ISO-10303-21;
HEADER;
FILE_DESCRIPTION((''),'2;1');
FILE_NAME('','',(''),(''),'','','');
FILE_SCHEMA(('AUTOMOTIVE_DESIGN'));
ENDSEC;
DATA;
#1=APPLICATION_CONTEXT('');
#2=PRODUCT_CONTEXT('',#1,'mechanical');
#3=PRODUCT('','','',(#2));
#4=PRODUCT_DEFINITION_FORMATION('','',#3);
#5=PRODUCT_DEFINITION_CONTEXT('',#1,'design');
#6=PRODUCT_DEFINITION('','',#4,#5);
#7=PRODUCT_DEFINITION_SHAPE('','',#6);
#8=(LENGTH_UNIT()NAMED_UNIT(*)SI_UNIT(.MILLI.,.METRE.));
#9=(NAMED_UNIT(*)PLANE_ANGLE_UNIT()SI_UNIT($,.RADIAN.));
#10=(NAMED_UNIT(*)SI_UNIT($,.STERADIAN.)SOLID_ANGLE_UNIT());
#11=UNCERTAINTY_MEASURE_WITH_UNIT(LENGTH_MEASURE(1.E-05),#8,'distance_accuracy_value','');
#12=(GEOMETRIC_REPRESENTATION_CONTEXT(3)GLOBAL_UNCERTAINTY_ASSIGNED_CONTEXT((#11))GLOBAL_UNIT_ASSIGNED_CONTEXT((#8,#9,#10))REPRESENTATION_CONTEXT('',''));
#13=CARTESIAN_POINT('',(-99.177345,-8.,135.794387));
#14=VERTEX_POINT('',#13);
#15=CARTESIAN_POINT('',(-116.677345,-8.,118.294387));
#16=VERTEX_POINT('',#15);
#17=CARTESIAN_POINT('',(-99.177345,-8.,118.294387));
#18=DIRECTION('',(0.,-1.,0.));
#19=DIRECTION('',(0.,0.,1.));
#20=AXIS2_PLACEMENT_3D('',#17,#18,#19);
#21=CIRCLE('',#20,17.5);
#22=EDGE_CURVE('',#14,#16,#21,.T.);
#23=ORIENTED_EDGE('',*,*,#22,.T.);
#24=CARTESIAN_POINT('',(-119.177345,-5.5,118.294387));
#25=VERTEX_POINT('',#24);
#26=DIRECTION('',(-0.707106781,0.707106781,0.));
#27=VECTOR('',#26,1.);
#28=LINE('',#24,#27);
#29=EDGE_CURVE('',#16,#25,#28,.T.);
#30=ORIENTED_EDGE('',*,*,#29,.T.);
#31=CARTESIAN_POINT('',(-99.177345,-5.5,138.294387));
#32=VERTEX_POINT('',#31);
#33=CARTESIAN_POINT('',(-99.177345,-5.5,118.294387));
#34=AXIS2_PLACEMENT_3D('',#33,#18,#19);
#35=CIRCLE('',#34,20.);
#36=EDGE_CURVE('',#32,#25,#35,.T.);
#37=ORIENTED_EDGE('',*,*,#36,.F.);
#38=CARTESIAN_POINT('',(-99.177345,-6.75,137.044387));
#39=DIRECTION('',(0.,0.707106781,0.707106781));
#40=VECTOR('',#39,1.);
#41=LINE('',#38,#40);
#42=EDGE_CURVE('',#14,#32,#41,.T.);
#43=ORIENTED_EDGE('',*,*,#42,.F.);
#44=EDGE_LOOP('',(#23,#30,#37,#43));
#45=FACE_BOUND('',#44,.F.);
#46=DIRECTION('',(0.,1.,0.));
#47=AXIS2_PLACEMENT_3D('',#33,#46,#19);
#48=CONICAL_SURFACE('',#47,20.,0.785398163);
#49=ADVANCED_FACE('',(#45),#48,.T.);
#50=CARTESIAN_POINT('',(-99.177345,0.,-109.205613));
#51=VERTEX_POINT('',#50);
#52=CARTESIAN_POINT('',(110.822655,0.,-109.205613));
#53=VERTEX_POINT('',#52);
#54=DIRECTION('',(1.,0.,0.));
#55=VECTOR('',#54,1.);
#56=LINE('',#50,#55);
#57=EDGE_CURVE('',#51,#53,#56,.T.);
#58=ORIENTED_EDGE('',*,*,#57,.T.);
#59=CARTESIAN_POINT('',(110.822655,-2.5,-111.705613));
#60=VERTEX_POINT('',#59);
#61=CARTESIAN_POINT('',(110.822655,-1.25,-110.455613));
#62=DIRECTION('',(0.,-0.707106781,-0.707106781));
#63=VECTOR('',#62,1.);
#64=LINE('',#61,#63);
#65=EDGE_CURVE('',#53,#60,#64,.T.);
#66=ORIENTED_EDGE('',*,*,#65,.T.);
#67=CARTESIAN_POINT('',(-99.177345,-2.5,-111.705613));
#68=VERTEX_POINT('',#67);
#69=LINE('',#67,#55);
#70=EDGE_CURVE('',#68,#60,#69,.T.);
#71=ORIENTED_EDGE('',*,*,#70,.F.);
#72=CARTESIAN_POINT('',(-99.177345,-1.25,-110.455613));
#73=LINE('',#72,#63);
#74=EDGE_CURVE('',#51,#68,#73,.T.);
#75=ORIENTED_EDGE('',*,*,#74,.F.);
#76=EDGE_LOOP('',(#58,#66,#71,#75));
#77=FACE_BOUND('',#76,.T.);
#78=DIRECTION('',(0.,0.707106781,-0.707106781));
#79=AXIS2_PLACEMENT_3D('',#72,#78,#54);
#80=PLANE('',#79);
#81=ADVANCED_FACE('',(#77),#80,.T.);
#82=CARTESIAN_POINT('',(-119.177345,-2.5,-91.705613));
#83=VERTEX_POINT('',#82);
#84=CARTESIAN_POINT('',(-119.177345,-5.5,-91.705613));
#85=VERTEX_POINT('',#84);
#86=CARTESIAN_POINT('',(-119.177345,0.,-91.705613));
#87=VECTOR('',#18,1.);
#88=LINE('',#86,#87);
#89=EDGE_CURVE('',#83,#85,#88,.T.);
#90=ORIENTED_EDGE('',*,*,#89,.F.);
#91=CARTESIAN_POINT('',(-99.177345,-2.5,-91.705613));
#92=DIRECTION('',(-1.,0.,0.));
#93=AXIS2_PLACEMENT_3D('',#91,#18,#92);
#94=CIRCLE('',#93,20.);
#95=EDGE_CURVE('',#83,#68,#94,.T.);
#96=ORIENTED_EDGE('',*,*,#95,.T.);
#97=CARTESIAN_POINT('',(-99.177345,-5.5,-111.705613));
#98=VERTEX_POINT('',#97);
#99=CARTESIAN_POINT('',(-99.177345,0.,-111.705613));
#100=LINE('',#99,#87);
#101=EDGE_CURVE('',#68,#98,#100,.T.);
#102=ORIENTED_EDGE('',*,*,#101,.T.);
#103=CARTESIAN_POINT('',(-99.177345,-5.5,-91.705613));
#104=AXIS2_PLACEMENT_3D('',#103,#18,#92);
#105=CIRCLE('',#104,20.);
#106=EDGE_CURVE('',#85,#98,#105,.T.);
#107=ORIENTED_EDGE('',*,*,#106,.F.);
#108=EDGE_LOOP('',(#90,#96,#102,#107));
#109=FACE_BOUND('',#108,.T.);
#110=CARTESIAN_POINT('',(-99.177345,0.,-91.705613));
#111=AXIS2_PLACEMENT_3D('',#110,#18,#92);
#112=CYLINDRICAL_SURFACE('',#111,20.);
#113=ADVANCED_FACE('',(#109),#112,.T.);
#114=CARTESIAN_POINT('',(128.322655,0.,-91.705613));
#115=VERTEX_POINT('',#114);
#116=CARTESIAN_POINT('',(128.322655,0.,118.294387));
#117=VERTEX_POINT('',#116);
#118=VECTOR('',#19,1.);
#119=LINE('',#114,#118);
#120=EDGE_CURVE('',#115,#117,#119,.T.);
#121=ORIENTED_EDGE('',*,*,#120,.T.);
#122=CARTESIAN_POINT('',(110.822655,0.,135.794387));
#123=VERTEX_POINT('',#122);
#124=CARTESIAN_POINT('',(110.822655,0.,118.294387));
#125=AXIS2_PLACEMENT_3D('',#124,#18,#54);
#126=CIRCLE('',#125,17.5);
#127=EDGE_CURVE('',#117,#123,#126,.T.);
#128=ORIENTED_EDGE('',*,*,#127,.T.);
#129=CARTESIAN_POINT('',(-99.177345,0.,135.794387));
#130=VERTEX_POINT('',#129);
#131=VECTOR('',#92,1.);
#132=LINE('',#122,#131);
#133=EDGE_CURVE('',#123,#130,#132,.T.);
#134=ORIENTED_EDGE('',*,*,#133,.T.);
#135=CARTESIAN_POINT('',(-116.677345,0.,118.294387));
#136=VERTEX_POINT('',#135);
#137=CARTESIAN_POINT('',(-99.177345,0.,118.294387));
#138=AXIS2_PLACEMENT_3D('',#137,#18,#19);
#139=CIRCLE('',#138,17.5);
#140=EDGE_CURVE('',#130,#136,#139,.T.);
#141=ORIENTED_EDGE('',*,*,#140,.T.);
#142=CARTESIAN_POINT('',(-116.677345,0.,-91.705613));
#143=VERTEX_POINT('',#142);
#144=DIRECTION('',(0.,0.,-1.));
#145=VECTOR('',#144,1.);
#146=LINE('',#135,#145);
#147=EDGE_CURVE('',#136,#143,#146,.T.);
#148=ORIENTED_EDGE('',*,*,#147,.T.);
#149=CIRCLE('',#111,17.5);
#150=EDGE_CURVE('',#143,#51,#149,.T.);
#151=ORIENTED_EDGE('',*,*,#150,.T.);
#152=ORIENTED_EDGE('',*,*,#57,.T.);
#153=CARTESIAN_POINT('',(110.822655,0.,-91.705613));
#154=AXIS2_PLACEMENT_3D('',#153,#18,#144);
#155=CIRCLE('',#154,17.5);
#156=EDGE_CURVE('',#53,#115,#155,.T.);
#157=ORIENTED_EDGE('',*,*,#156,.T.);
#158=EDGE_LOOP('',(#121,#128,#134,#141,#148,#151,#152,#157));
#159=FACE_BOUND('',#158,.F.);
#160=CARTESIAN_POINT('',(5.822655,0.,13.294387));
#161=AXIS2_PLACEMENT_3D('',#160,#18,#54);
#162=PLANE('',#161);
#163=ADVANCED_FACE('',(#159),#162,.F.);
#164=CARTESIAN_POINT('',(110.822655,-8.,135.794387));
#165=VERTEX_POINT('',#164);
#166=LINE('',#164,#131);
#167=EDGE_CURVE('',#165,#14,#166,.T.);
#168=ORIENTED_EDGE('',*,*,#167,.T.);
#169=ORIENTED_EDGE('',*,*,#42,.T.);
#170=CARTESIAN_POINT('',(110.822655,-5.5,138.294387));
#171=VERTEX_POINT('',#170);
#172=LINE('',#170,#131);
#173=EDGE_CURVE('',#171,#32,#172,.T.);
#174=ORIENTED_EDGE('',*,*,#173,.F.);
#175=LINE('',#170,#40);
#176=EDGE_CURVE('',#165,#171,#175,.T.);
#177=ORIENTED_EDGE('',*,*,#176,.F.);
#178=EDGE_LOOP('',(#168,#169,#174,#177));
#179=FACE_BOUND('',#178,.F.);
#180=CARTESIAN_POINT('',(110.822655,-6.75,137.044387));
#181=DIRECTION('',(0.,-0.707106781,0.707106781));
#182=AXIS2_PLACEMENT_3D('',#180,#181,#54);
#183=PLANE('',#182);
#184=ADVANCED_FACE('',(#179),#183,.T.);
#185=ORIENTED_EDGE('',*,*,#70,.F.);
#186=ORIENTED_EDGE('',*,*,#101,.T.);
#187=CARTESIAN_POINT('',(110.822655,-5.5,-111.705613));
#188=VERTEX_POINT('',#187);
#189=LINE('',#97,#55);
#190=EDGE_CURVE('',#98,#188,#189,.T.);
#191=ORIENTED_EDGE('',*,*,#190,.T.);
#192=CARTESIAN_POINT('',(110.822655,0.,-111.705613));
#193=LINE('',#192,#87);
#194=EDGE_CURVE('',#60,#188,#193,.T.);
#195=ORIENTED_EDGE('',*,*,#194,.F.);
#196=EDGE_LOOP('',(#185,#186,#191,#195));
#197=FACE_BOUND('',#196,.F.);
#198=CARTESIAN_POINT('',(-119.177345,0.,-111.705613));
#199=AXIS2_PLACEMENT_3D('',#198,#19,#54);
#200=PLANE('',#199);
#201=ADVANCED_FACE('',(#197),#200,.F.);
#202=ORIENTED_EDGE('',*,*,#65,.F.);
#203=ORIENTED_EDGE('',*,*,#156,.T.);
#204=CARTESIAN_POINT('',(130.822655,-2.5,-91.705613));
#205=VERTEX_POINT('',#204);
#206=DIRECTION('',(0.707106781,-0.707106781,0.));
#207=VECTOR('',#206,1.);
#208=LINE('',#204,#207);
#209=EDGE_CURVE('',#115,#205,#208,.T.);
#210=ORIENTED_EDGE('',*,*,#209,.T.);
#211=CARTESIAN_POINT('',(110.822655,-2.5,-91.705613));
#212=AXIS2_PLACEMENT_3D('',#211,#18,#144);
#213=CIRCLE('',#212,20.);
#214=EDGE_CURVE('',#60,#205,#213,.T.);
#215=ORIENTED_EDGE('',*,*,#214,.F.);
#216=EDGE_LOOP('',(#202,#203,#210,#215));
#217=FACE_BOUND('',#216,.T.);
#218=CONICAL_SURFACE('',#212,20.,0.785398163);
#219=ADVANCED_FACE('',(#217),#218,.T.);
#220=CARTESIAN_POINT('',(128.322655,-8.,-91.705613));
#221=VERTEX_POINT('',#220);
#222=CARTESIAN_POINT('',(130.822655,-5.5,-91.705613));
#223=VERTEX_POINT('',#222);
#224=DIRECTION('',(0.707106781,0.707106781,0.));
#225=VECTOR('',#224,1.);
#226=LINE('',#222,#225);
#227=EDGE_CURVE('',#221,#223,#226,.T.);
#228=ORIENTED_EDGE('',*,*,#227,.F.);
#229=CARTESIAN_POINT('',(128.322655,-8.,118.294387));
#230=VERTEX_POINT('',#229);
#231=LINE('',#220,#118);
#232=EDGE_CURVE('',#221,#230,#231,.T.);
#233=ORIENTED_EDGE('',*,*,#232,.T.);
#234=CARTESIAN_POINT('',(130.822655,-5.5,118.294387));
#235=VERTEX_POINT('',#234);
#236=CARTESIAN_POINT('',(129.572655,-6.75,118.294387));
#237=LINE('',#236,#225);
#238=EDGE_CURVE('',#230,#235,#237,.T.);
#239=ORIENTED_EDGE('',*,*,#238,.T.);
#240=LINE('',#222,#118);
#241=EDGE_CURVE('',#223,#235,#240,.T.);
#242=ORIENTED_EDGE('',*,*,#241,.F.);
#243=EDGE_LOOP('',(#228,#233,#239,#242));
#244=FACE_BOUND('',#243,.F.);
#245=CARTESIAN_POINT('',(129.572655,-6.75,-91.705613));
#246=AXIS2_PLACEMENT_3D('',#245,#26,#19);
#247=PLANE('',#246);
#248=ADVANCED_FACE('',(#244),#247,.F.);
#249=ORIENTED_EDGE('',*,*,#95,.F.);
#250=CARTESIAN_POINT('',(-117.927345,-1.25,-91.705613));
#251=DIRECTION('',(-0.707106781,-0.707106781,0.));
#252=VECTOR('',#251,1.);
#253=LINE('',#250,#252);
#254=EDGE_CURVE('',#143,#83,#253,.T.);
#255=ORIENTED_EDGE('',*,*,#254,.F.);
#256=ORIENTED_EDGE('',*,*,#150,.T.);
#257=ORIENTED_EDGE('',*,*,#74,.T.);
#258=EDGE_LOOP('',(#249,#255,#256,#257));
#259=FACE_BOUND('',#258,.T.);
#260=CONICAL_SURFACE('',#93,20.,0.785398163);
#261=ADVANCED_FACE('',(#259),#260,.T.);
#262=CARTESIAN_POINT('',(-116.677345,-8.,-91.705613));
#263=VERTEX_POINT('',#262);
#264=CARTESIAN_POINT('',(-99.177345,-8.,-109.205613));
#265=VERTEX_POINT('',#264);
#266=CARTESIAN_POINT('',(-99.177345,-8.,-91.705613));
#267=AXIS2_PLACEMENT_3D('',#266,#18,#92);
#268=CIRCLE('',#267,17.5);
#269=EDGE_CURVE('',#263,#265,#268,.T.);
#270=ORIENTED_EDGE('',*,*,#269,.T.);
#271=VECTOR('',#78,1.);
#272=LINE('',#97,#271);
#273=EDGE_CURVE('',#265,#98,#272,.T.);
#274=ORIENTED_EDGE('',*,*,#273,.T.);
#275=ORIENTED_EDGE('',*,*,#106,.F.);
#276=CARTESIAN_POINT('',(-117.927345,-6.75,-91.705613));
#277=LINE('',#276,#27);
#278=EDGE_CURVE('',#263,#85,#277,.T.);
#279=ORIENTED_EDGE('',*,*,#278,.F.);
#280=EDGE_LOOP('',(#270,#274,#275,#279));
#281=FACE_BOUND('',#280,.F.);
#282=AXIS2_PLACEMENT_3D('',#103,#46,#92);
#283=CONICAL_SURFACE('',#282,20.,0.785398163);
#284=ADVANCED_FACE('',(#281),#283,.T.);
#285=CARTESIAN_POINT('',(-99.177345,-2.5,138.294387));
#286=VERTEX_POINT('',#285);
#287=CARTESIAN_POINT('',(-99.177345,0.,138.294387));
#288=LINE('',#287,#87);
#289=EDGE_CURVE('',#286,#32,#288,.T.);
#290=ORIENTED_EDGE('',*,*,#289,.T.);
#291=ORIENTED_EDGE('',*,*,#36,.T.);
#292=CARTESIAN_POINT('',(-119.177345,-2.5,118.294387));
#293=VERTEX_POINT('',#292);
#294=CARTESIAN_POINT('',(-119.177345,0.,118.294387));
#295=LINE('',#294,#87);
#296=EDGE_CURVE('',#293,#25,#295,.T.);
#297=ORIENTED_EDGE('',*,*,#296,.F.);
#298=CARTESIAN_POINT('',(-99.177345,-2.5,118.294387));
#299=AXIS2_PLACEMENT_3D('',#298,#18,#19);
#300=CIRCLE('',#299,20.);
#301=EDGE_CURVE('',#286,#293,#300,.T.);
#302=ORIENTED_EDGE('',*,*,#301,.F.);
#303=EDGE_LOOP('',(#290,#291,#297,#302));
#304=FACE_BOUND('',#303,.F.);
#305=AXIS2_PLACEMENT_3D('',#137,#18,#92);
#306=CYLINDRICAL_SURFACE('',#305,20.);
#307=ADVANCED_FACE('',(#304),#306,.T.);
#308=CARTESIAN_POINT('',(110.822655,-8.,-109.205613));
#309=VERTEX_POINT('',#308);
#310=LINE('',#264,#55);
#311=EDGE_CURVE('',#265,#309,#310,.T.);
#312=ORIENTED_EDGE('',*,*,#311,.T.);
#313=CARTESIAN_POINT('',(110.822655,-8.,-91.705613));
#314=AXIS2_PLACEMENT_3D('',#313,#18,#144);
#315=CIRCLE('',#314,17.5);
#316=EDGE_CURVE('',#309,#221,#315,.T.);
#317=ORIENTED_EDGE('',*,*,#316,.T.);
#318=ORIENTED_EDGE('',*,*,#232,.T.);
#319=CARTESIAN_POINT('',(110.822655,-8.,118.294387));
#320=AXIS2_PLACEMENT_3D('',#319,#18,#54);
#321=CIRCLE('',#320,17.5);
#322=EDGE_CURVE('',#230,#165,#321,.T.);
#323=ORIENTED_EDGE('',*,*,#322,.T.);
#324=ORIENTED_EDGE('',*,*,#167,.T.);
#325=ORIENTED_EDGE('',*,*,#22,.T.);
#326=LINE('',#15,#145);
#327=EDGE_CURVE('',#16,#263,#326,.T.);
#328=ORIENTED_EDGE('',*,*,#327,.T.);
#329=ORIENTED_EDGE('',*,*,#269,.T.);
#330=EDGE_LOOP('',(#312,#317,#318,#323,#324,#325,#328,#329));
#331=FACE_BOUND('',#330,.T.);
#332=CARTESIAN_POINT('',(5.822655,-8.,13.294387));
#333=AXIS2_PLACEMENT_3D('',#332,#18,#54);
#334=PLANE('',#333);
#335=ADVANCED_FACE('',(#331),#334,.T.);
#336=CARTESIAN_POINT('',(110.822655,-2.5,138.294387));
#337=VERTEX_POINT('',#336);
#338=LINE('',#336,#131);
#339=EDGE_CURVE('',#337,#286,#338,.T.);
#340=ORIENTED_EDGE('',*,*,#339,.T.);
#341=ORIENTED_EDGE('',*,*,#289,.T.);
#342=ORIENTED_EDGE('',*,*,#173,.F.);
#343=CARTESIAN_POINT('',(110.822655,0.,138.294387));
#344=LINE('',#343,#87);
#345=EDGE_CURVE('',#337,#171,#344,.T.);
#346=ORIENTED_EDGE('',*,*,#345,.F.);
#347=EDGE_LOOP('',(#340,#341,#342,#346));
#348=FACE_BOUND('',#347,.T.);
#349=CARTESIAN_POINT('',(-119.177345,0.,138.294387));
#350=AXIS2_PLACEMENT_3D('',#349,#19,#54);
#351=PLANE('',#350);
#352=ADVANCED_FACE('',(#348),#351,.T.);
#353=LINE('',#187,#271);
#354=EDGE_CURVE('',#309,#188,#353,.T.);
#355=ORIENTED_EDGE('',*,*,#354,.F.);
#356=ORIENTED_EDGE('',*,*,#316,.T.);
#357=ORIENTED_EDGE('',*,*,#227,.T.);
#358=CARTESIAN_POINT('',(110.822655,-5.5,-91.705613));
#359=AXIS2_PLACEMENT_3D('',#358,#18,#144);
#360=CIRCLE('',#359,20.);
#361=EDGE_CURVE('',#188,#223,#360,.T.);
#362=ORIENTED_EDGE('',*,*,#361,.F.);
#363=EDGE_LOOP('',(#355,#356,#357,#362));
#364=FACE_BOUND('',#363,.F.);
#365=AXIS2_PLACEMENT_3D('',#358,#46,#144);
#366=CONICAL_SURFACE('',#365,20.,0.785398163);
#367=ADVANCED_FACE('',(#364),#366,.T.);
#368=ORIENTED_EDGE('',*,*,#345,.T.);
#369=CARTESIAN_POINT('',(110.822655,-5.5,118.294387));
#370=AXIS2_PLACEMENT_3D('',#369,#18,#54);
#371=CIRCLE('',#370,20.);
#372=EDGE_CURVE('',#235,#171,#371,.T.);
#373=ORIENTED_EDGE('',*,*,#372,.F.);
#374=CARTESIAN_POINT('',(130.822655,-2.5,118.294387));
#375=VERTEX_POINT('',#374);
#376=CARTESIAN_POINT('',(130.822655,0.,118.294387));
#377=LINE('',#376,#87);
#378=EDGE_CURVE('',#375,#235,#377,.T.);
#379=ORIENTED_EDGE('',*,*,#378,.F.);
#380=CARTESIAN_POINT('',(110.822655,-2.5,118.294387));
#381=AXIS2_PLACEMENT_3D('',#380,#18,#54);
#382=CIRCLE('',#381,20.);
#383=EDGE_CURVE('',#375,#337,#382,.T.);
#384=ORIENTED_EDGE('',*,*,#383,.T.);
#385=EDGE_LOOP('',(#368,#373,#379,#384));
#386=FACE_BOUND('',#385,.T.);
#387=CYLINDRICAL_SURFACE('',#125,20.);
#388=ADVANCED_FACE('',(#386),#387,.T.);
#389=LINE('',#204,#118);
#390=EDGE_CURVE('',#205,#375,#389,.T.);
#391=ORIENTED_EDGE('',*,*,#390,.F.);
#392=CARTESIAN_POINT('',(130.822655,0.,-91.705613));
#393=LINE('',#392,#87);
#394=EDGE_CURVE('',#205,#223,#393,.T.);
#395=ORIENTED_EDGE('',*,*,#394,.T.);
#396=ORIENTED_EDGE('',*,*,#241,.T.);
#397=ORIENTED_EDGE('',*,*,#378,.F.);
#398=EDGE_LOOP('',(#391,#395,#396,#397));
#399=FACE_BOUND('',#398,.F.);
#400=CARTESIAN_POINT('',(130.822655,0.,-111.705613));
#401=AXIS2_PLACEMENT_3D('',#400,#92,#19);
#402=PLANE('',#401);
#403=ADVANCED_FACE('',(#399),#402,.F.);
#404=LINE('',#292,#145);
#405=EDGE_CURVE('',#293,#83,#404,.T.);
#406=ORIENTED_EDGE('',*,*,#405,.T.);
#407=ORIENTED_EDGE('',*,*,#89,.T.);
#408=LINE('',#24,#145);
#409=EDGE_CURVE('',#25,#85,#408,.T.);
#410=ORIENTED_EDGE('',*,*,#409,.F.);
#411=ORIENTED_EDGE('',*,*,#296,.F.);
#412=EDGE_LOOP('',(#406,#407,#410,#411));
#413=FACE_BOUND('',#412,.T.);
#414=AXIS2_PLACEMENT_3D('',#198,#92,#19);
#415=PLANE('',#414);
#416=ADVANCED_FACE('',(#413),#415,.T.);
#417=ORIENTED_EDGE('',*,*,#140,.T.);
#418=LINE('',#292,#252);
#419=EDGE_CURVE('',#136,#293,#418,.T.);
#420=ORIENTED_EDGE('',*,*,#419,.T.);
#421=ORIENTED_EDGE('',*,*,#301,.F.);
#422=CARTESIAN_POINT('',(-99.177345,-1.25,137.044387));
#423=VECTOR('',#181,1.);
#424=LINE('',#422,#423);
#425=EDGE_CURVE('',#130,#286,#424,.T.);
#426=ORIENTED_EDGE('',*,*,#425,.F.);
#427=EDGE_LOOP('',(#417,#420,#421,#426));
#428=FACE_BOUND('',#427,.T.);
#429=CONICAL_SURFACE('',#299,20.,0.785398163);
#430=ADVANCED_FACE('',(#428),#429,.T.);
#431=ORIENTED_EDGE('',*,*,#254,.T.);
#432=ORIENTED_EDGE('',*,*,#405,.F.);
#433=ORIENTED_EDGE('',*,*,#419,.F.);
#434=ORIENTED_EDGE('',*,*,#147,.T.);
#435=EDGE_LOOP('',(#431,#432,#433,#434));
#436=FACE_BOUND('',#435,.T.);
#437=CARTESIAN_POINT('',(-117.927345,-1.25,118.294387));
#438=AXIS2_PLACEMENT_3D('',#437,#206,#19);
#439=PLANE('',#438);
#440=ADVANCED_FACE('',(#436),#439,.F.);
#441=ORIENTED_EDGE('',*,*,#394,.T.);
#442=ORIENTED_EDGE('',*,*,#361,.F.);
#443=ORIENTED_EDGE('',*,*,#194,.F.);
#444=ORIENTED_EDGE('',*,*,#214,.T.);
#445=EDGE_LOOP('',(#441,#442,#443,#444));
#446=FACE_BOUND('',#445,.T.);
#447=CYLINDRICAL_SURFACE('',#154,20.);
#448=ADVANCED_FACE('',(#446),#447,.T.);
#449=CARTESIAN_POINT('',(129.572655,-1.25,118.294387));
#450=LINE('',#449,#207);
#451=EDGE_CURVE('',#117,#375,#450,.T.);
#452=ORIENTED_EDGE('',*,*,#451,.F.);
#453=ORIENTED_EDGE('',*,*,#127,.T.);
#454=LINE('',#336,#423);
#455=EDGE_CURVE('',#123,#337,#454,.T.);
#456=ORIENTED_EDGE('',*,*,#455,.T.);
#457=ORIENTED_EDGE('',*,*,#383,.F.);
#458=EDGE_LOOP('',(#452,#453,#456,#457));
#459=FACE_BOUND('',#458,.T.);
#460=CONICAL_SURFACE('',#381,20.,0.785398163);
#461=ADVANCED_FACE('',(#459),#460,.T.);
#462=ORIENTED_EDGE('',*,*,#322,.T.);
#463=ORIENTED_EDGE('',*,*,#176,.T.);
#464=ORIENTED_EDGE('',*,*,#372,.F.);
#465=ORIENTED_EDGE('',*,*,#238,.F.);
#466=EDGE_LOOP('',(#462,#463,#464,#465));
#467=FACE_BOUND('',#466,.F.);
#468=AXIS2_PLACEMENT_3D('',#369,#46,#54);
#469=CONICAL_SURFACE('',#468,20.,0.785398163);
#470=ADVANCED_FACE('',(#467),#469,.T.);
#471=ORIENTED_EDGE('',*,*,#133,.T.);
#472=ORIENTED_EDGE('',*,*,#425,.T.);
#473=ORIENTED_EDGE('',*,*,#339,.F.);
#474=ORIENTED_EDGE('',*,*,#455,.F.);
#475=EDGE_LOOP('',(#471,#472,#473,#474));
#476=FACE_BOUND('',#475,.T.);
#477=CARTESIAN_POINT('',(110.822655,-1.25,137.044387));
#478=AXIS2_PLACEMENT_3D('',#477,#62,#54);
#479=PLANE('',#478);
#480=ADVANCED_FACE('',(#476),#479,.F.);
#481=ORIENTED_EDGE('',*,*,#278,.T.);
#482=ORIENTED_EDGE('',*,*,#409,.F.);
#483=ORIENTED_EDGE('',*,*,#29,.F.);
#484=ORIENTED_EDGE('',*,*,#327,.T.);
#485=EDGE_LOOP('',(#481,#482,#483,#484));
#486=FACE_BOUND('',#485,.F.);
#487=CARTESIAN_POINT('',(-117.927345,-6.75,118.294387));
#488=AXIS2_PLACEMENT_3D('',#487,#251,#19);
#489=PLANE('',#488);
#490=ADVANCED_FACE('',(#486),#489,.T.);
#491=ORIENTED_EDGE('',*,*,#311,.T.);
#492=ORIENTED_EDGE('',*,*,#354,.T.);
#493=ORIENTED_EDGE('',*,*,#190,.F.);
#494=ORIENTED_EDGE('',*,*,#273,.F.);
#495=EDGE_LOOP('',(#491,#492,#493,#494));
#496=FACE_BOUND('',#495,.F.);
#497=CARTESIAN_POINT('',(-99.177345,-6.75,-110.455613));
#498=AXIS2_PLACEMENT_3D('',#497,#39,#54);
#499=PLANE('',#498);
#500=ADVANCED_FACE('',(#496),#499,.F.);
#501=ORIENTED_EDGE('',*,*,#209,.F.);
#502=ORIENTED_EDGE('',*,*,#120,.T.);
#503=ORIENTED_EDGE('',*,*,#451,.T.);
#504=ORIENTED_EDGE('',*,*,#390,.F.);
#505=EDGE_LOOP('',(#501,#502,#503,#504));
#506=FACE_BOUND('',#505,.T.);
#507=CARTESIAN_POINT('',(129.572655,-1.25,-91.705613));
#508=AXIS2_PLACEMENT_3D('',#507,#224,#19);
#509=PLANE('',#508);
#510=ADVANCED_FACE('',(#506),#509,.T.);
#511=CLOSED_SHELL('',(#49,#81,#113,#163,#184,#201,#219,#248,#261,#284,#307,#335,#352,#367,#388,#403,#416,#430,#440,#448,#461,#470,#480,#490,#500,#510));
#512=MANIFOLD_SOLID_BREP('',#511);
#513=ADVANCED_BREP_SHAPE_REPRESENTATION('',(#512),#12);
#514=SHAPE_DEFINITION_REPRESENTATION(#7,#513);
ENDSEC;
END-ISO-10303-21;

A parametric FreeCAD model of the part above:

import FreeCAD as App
import Part
import Sketcher


def edges_at(feature, points):
    """Names of the edges that pass closest to the given points."""
    edges = feature.Shape.Edges
    near = lambda p: min(range(len(edges)), key=lambda i: edges[i].distToShape(Part.Vertex(*p))[0])
    return sorted({f"Edge{near(p) + 1}" for p in points})

doc = App.newDocument("Part")
body = doc.addObject("PartDesign::Body", "Body")

sketch1 = body.newObject("Sketcher::SketchObject", "Sketch")
sketch1.AttachmentSupport = (doc.getObject("XZ_Plane"), [""])
sketch1.MapMode = "FlatFace"
sketch1.addGeometry([
    Part.LineSegment(App.Vector(-119, 138, 0), App.Vector(-119, -112, 0)),
    Part.LineSegment(App.Vector(-119, -112, 0), App.Vector(131, -112, 0)),
    Part.LineSegment(App.Vector(131, -112, 0), App.Vector(131, 138, 0)),
    Part.LineSegment(App.Vector(131, 138, 0), App.Vector(-119, 138, 0)),
], False)
sketch1.addConstraint([
    Sketcher.Constraint("Coincident", 0, 2, 1, 1),
    Sketcher.Constraint("Coincident", 1, 2, 2, 1),
    Sketcher.Constraint("Coincident", 2, 2, 3, 1),
    Sketcher.Constraint("Coincident", 3, 2, 0, 1),
    Sketcher.Constraint("Vertical", 0),
    Sketcher.Constraint("Horizontal", 1),
    Sketcher.Constraint("Vertical", 2),
    Sketcher.Constraint("Horizontal", 3),
    Sketcher.Constraint("Equal", 3, 0),
    Sketcher.Constraint("DistanceX", 1, 1, 1, 2, 250.0),
    Sketcher.Constraint("DistanceX", 0, 2, -1, 1, 119.177345),
    Sketcher.Constraint("DistanceY", 0, 2, -1, 1, 111.705613),
])
pad1 = body.newObject("PartDesign::Pad", "Pad")
pad1.Profile = sketch1
pad1.Length = 8
doc.recompute()

fillet = body.newObject("PartDesign::Fillet", "Fillet")
fillet.Base = (pad1, edges_at(pad1, [
    (-119.177, -4, -111.706),
    (130.823, -4, -111.706),
    (130.823, -4, 138.294),
    (-119.177, -4, 138.294),
]))
fillet.Radius = 20
doc.recompute()

chamfer = body.newObject("PartDesign::Chamfer", "Chamfer")
chamfer.Base = (fillet, edges_at(fillet, [
    (5.823, 0, -111.706),
    (-113.319, 0, -105.848),
    (-119.177, 0, 13.294),
    (-113.319, 0, 132.437),
    (5.823, 0, 138.294),
    (124.965, 0, 132.437),
    (124.965, 0, -105.848),
    (130.823, 0, 13.294),
    (124.965, -8, -105.848),
    (5.823, -8, -111.706),
]))
chamfer.Size = 2.5

doc.recompute()
